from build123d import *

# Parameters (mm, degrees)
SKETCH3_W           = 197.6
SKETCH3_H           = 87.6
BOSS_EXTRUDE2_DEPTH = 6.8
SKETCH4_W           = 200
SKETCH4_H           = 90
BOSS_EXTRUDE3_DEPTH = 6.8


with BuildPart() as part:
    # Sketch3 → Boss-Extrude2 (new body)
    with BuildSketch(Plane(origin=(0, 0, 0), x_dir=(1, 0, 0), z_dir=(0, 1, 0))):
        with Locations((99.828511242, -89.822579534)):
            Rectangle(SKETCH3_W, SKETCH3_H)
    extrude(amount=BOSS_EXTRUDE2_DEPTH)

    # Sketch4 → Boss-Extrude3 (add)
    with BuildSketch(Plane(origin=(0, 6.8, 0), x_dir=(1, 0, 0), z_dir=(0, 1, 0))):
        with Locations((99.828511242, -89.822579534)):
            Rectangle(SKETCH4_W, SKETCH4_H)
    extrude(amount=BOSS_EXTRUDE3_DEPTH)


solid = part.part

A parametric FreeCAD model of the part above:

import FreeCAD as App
import Part
import Sketcher
Q = App.Units.Quantity


def add_polygon(sketch, points):
    """Adds a closed chain of lines whose ends are joined by coincident constraints."""
    first, n = sketch.GeometryCount, len(points)
    for a, b in zip(points, points[1:] + points[:1]):
        sketch.addGeometry(Part.LineSegment(App.Vector(*a, 0), App.Vector(*b, 0)), False)
    for i in range(n):
        sketch.addConstraint(Sketcher.Constraint("Coincident", first + i, 2, first + (i + 1) % n, 1))

doc = App.newDocument("Part")
body = doc.addObject("PartDesign::Body", "Body")

sketch1 = body.newObject("Sketcher::SketchObject", "Sketch")
sketch1.AttachmentSupport = (doc.getObject("XZ_Plane"), [""])
sketch1.MapMode = "FlatFace"
add_polygon(sketch1, [(1.028511, 46.02258), (1.028511, 133.62258), (198.628511, 133.62258), (198.628511, 46.02258)])
sketch1.addConstraint([
    Sketcher.Constraint("Vertical", 0),
    Sketcher.Constraint("Horizontal", 1),
    Sketcher.Constraint("Vertical", 2),
    Sketcher.Constraint("Horizontal", 3),
    Sketcher.Constraint("DistanceX", 1, 1, 1, 2, Q("197.6 mm")),
    Sketcher.Constraint("DistanceY", 0, 1, 0, 2, Q("87.6 mm")),
    Sketcher.Constraint("DistanceX", -1, 1, 0, 2, Q("1.028511 mm")),
    Sketcher.Constraint("DistanceY", -1, 1, 0, 2, Q("133.62258 mm")),
])
pad1 = body.newObject("PartDesign::Pad", "Pad")
pad1.Profile = sketch1
pad1.Length = 6.8
pad1.Reversed = True

sketch2 = body.newObject("Sketcher::SketchObject", "Sketch001")
sketch2.AttachmentSupport = (doc.getObject("XZ_Plane"), [""])
sketch2.MapMode = "FlatFace"
sketch2.AttachmentOffset = App.Placement(App.Vector(0, 0, -6.8), App.Rotation())
add_polygon(sketch2, [(-0.171489, 44.82258), (-0.171489, 134.82258), (199.828511, 134.82258), (199.828511, 44.82258)])
sketch2.addConstraint([
    Sketcher.Constraint("Vertical", 0),
    Sketcher.Constraint("Horizontal", 1),
    Sketcher.Constraint("Vertical", 2),
    Sketcher.Constraint("Horizontal", 3),
    Sketcher.Constraint("DistanceX", 1, 1, 1, 2, Q("200 mm")),
    Sketcher.Constraint("DistanceY", 0, 1, 0, 2, Q("90 mm")),
    Sketcher.Constraint("DistanceX", 0, 2, -1, 1, Q("0.171489 mm")),
    Sketcher.Constraint("DistanceY", -1, 1, 0, 2, Q("134.82258 mm")),
])
pad2 = body.newObject("PartDesign::Pad", "Pad001")
pad2.Profile = sketch2
pad2.Length = 6.8
pad2.Reversed = True

doc.recompute()
